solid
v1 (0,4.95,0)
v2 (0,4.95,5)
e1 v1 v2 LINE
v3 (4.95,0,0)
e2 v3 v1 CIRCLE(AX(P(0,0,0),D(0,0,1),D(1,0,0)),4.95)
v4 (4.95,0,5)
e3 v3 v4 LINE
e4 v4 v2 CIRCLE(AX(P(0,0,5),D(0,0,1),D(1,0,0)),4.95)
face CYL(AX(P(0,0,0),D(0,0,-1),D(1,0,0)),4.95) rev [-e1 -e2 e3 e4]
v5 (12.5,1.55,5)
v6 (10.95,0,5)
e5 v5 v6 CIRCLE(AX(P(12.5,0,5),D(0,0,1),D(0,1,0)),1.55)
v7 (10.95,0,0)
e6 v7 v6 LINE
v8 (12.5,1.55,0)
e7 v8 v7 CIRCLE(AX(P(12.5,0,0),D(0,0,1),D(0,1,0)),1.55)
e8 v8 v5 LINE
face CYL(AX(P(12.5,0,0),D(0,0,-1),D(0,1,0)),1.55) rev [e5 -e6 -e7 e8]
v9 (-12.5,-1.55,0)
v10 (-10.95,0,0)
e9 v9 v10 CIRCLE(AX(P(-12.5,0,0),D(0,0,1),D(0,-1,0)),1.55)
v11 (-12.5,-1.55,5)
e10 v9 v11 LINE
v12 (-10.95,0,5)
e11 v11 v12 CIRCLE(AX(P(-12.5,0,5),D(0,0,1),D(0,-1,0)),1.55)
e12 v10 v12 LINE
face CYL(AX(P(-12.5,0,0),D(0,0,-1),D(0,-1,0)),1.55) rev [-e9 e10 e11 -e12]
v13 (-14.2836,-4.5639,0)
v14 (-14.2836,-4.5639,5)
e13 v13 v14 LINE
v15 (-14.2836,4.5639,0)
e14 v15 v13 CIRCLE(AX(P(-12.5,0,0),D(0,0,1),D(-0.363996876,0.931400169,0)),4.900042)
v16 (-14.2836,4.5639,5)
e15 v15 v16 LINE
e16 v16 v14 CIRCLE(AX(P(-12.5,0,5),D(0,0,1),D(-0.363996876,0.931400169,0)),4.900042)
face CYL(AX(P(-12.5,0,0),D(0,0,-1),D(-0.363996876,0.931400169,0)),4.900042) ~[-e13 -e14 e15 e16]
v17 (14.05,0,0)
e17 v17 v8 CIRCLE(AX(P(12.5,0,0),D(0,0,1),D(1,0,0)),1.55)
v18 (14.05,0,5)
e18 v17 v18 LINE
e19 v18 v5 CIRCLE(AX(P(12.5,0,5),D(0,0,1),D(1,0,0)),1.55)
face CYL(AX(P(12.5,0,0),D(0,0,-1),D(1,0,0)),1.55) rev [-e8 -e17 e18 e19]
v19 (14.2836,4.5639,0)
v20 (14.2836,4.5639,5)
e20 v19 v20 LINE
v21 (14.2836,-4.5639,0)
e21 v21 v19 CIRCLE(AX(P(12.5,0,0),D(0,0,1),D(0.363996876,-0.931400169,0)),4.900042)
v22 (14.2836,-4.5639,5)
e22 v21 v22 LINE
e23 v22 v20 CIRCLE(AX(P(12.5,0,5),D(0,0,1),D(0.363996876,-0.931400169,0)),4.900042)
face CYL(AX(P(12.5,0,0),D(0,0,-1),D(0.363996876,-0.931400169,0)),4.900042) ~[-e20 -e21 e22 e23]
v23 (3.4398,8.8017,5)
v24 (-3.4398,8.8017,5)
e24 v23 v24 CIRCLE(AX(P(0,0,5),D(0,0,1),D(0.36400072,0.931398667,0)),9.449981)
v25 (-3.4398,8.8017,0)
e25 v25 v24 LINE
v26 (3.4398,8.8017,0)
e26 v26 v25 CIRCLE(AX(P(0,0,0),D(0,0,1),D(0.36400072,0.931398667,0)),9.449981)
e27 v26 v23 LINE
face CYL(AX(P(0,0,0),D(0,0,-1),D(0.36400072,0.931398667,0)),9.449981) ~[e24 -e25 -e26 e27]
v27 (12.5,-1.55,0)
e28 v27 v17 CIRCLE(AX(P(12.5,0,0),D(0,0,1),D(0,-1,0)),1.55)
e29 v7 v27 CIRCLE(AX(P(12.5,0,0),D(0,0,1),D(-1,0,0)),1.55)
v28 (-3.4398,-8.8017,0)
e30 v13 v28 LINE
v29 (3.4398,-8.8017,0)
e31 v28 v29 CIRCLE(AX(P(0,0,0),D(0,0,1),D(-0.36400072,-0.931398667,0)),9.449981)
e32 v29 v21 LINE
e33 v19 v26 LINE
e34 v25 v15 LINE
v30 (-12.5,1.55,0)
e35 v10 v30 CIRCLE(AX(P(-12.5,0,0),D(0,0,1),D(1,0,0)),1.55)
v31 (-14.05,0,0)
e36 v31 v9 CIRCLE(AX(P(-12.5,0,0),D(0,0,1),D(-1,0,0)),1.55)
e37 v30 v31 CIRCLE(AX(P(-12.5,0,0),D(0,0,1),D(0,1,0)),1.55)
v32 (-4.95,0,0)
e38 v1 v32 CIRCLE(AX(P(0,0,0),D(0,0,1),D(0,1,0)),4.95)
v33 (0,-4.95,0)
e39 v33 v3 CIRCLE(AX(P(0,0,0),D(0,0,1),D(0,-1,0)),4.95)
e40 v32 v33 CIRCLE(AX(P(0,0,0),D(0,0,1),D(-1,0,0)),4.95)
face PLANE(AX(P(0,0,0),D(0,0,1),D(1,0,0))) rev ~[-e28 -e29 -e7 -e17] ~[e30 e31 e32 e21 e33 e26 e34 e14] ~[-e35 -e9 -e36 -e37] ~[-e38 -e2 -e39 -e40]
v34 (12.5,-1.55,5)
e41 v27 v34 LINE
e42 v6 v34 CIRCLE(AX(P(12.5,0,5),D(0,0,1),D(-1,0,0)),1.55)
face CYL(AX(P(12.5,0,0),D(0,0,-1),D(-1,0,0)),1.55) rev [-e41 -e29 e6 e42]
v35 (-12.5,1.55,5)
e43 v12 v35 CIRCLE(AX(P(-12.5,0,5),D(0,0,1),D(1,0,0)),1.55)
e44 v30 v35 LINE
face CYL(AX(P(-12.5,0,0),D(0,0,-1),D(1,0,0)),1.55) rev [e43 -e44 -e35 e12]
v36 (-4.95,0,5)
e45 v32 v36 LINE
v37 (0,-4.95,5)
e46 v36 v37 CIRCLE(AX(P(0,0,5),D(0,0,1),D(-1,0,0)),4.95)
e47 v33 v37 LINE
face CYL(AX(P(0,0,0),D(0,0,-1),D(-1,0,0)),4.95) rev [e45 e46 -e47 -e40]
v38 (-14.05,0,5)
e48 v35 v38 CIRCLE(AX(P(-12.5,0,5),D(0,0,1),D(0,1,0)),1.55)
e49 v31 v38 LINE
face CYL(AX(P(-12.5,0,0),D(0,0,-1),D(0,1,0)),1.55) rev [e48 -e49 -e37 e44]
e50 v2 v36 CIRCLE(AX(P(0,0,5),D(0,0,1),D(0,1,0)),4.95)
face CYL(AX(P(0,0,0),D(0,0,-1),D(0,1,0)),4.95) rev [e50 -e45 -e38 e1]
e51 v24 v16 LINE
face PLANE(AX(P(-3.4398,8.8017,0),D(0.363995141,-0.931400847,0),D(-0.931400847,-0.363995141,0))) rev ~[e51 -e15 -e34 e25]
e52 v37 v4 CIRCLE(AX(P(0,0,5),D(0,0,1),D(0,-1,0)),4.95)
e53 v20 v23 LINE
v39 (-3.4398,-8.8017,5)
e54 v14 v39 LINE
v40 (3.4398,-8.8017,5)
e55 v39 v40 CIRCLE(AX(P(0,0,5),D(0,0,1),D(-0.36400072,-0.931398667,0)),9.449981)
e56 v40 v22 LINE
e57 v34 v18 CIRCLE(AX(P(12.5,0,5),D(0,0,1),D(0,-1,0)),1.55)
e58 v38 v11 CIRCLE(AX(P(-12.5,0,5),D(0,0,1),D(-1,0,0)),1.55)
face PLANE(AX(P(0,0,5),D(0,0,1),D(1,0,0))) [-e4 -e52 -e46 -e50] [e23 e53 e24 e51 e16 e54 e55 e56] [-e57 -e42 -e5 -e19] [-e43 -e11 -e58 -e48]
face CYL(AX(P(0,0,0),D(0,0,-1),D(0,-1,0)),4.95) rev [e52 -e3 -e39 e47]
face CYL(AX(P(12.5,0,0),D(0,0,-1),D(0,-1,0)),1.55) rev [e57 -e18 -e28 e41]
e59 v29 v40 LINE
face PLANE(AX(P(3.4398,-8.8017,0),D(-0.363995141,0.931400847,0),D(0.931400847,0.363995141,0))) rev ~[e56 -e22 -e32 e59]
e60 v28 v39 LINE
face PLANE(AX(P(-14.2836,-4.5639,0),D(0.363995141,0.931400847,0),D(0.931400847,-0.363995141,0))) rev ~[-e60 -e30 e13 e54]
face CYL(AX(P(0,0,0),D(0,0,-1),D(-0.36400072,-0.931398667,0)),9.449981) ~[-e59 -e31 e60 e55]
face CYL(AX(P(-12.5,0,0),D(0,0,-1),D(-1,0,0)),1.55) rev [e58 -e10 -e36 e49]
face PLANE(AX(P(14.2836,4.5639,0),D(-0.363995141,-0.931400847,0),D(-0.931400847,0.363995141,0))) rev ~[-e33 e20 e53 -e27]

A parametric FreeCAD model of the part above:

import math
import FreeCAD as App
import Part
import Sketcher
from FreeCAD import Vector

doc = App.newDocument("Part")
body = doc.addObject("PartDesign::Body", "Body")

# Sketch on XY plane
sketch1 = doc.addObject("Sketcher::SketchObject", "Sketch")
body.addObject(sketch1)
sketch1.AttachmentSupport = (doc.XY_Plane, [""])
sketch1.MapMode = "FlatFace"
sketch1.addGeometry(Part.LineSegment(Vector(14.3, 4.6, 0), Vector(3.4, 8.8, 0)), False)
sketch1.addGeometry(Part.ArcOfCircle(Part.Circle(Vector(0, 0, 0), Vector(0, 0, 1), 9.4), math.radians(69), math.radians(111)), False)
sketch1.addGeometry(Part.LineSegment(Vector(-3.4, 8.8, 0), Vector(-14.3, 4.6, 0)), False)
sketch1.addGeometry(Part.ArcOfCircle(Part.Circle(Vector(-12.5, 0, 0), Vector(0, 0, 1), 4.9), math.radians(111), math.radians(249)), False)
sketch1.addGeometry(Part.LineSegment(Vector(-14.3, -4.6, 0), Vector(-3.4, -8.8, 0)), False)
sketch1.addGeometry(Part.ArcOfCircle(Part.Circle(Vector(0, 0, 0), Vector(0, 0, 1), 9.4), math.radians(-111), math.radians(-69)), False)
sketch1.addGeometry(Part.LineSegment(Vector(3.4, -8.8, 0), Vector(14.3, -4.6, 0)), False)
sketch1.addGeometry(Part.ArcOfCircle(Part.Circle(Vector(12.5, 0, 0), Vector(0, 0, 1), 4.9), math.radians(-69), math.radians(69)), False)
sketch1.addGeometry(Part.Circle(Vector(-12.5, 0, 0), Vector(0, 0, 1), 1.6), False)
sketch1.addGeometry(Part.Circle(Vector(0, 0, 0), Vector(0, 0, 1), 5), False)
sketch1.addGeometry(Part.Circle(Vector(12.5, 0, 0), Vector(0, 0, 1), 1.6), False)
sketch1.addConstraint(Sketcher.Constraint("Tangent", 0, 2, 1, 1))
sketch1.addConstraint(Sketcher.Constraint("Tangent", 1, 2, 2, 1))
sketch1.addConstraint(Sketcher.Constraint("Tangent", 2, 2, 3, 1))
sketch1.addConstraint(Sketcher.Constraint("Tangent", 3, 2, 4, 1))
sketch1.addConstraint(Sketcher.Constraint("Tangent", 4, 2, 5, 1))
sketch1.addConstraint(Sketcher.Constraint("Tangent", 5, 2, 6, 1))
sketch1.addConstraint(Sketcher.Constraint("Tangent", 6, 2, 7, 1))
sketch1.addConstraint(Sketcher.Constraint("Tangent", 7, 2, 0, 1))
sketch1.addConstraint(Sketcher.Constraint("Coincident", 1, 3, -1, 1))
sketch1.addConstraint(Sketcher.Constraint("Coincident", 5, 3, -1, 1))
sketch1.addConstraint(Sketcher.Constraint("Coincident", 9, 3, -1, 1))
sketch1.addConstraint(Sketcher.Constraint("Coincident", 8, 3, 3, 3))
sketch1.addConstraint(Sketcher.Constraint("Coincident", 10, 3, 7, 3))
sketch1.addConstraint(Sketcher.Constraint("Equal", 1, 5))
sketch1.addConstraint(Sketcher.Constraint("Equal", 3, 7))
sketch1.addConstraint(Sketcher.Constraint("Equal", 8, 10))
sketch1.addConstraint(Sketcher.Constraint("Symmetric", 3, 3, 7, 3, -1, 1))
sketch1.addConstraint(Sketcher.Constraint("PointOnObject", 3, 3, -1))
sketch1.addConstraint(Sketcher.Constraint("Diameter", 8, 3.1))
sketch1.addConstraint(Sketcher.Constraint("Diameter", 9, 9.9))
sketch1.addConstraint(Sketcher.Constraint("Radius", 3, 4.9))
sketch1.addConstraint(Sketcher.Constraint("Radius", 1, 9.45))
sketch1.addConstraint(Sketcher.Constraint("DistanceX", 3, 3, 7, 3, 25.0))
pad1 = doc.addObject("PartDesign::Pad", "Pad")
body.addObject(pad1)
pad1.Profile = sketch1
pad1.Length = 5

doc.recompute()
